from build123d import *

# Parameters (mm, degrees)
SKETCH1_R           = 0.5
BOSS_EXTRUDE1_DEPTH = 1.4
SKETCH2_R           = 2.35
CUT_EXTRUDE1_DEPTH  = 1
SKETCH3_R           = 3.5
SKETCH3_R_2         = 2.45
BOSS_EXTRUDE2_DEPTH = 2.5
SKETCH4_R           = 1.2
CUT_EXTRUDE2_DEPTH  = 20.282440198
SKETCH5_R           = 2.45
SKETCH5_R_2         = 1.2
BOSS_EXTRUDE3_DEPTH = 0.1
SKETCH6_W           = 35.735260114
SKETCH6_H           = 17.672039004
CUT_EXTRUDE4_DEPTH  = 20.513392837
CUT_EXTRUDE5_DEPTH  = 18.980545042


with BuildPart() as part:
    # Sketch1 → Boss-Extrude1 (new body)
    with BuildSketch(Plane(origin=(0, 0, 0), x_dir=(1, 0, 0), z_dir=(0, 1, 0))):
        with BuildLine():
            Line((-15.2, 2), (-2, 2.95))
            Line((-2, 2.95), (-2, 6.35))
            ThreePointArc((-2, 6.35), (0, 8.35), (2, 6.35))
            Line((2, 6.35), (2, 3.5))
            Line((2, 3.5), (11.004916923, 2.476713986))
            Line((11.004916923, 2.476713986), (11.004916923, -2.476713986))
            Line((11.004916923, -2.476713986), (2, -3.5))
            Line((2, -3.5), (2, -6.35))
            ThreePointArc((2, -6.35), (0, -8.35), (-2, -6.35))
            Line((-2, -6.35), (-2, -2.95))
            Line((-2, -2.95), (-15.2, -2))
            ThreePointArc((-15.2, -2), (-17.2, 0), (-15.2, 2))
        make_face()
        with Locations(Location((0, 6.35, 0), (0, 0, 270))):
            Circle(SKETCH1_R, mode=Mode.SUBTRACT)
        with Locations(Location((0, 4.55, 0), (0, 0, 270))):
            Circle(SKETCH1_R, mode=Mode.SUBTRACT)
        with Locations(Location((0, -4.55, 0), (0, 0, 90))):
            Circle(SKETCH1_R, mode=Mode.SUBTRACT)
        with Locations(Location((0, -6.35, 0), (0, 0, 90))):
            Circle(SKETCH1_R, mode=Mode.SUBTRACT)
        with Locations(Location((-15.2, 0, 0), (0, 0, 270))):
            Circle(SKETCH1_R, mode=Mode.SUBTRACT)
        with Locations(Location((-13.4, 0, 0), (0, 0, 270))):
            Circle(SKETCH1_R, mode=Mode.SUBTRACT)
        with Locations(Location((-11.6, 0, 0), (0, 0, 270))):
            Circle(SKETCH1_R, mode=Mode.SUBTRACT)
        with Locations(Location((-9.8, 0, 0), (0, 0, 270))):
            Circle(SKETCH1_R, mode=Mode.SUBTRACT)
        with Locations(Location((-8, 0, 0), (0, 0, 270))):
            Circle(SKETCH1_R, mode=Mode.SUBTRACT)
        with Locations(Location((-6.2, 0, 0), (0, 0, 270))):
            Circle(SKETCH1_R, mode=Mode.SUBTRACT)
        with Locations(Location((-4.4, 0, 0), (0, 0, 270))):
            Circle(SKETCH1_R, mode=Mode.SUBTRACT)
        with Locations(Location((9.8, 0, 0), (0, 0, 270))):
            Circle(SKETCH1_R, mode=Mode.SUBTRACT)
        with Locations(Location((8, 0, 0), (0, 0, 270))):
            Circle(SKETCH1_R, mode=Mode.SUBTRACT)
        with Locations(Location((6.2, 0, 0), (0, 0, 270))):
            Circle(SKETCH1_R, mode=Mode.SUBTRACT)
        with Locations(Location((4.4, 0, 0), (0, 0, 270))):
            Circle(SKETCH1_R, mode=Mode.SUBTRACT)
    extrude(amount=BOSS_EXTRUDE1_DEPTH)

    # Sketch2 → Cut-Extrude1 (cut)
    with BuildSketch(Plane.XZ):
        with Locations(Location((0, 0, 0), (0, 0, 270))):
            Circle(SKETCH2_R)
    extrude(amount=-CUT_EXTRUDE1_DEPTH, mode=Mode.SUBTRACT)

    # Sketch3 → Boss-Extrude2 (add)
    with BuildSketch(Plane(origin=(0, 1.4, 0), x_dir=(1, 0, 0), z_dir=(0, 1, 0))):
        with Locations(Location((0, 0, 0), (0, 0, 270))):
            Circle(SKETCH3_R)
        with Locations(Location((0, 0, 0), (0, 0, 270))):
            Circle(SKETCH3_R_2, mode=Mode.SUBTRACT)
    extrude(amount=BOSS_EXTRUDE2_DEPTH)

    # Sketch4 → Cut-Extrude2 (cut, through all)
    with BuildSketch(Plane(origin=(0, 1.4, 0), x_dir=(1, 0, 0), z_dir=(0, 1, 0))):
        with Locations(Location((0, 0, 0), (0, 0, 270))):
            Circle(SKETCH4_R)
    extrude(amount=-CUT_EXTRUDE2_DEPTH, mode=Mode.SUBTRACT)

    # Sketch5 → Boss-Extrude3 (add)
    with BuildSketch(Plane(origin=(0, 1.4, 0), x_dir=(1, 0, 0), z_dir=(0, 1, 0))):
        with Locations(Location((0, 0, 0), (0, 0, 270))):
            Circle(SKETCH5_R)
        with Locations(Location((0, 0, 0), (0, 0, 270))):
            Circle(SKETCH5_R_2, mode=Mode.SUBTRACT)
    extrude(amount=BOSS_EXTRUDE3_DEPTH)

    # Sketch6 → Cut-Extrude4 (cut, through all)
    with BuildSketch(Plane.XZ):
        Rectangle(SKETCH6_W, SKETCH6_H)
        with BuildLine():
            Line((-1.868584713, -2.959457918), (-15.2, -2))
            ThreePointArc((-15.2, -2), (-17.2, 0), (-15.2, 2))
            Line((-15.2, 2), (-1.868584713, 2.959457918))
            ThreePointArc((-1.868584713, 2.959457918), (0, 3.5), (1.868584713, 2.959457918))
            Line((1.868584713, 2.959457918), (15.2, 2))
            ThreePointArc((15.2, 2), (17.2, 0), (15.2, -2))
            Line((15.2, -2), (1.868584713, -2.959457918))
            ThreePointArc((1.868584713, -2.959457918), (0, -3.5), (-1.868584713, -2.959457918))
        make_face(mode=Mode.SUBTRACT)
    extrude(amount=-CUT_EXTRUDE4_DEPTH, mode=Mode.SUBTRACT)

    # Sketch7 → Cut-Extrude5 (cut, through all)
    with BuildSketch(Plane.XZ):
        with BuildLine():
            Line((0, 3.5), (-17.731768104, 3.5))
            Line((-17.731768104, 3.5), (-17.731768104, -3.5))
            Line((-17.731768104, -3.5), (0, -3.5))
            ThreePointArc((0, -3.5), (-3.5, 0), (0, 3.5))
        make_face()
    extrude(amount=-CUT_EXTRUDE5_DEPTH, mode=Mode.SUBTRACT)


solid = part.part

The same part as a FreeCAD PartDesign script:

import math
import FreeCAD as App
import Part
import Sketcher
from FreeCAD import Vector
Q = App.Units.Quantity

doc = App.newDocument("Part")
body = doc.addObject("PartDesign::Body", "Body")

sketch1 = body.newObject("Sketcher::SketchObject", "Sketch")
sketch1.AttachmentSupport = (doc.getObject("XZ_Plane"), [""])
sketch1.MapMode = "FlatFace"
sketch1.addGeometry([
    Part.LineSegment(Vector(-2, -2.95, 0), Vector(-15.2, -2, 0)),
    Part.ArcOfCircle(Part.Circle(Vector(-15.2, 0, 0), Vector(0, 0, 1), 2), math.radians(90), math.radians(270)),
    Part.LineSegment(Vector(-15.2, 2, 0), Vector(-2, 2.95, 0)),
    Part.LineSegment(Vector(-2, 2.95, 0), Vector(-2, 6.35, 0)),
    Part.ArcOfCircle(Part.Circle(Vector(0, 6.35, 0), Vector(0, 0, 1), 2), math.radians(0), math.radians(180)),
    Part.LineSegment(Vector(2, 6.35, 0), Vector(2, 3.5, 0)),
    Part.LineSegment(Vector(2, 3.5, 0), Vector(11.004917, 2.476714, 0)),
    Part.LineSegment(Vector(11.004917, 2.476714, 0), Vector(11.004917, -2.476714, 0)),
    Part.LineSegment(Vector(11.004917, -2.476714, 0), Vector(2, -3.5, 0)),
    Part.LineSegment(Vector(2, -3.5, 0), Vector(2, -6.35, 0)),
    Part.ArcOfCircle(Part.Circle(Vector(0, -6.35, 0), Vector(0, 0, 1), 2), math.radians(180), math.radians(360)),
    Part.LineSegment(Vector(-2, -6.35, 0), Vector(-2, -2.95, 0)),
    Part.Circle(Vector(0, 6.35, 0), Vector(0, 0, 1), 0.5),
    Part.Circle(Vector(0, 4.55, 0), Vector(0, 0, 1), 0.5),
    Part.Circle(Vector(9.8, 0, 0), Vector(0, 0, 1), 0.5),
    Part.Circle(Vector(8, 0, 0), Vector(0, 0, 1), 0.5),
    Part.Circle(Vector(6.2, 0, 0), Vector(0, 0, 1), 0.5),
    Part.Circle(Vector(4.4, 0, 0), Vector(0, 0, 1), 0.5),
    Part.Circle(Vector(0, -4.55, 0), Vector(0, 0, 1), 0.5),
    Part.Circle(Vector(0, -6.35, 0), Vector(0, 0, 1), 0.5),
    Part.Circle(Vector(-4.4, 0, 0), Vector(0, 0, 1), 0.5),
    Part.Circle(Vector(-6.2, 0, 0), Vector(0, 0, 1), 0.5),
    Part.Circle(Vector(-8, 0, 0), Vector(0, 0, 1), 0.5),
    Part.Circle(Vector(-9.8, 0, 0), Vector(0, 0, 1), 0.5),
    Part.Circle(Vector(-11.6, 0, 0), Vector(0, 0, 1), 0.5),
    Part.Circle(Vector(-13.4, 0, 0), Vector(0, 0, 1), 0.5),
    Part.Circle(Vector(-15.2, 0, 0), Vector(0, 0, 1), 0.5),
], False)
sketch1.addConstraint([
    Sketcher.Constraint("Coincident", 0, 2, 1, 2),
    Sketcher.Constraint("Coincident", 1, 1, 2, 1),
    Sketcher.Constraint("Coincident", 2, 2, 3, 1),
    Sketcher.Constraint("Tangent", 3, 2, 4, 2),
    Sketcher.Constraint("Tangent", 4, 1, 5, 1),
    Sketcher.Constraint("Coincident", 5, 2, 6, 1),
    Sketcher.Constraint("Coincident", 6, 2, 7, 1),
    Sketcher.Constraint("Coincident", 7, 2, 8, 1),
    Sketcher.Constraint("Coincident", 8, 2, 9, 1),
    Sketcher.Constraint("Tangent", 9, 2, 10, 2),
    Sketcher.Constraint("Tangent", 10, 1, 11, 1),
    Sketcher.Constraint("Coincident", 11, 2, 0, 1),
    Sketcher.Constraint("Vertical", 3),
    Sketcher.Constraint("Vertical", 5),
    Sketcher.Constraint("Vertical", 7),
    Sketcher.Constraint("Vertical", 9),
    Sketcher.Constraint("Vertical", 11),
    Sketcher.Constraint("Coincident", 12, 3, 4, 3),
    Sketcher.Constraint("Coincident", 19, 3, 10, 3),
    Sketcher.Constraint("Coincident", 26, 3, 1, 3),
    Sketcher.Constraint("Equal", 1, 4),
    Sketcher.Constraint("Equal", 4, 10),
    Sketcher.Constraint("Equal", 12, 13),
    Sketcher.Constraint("Equal", 13, 14),
    Sketcher.Constraint("Equal", 14, 15),
    Sketcher.Constraint("Equal", 15, 16),
    Sketcher.Constraint("Equal", 16, 17),
    Sketcher.Constraint("Equal", 17, 18),
    Sketcher.Constraint("Equal", 18, 19),
    Sketcher.Constraint("Equal", 19, 20),
    Sketcher.Constraint("Equal", 20, 21),
    Sketcher.Constraint("Equal", 21, 22),
    Sketcher.Constraint("Equal", 22, 23),
    Sketcher.Constraint("Equal", 23, 24),
    Sketcher.Constraint("Equal", 24, 25),
    Sketcher.Constraint("Equal", 25, 26),
    Sketcher.Constraint("Symmetric", 4, 3, 10, 3, -1, 1),
    Sketcher.Constraint("Symmetric", 13, 3, 18, 3, -1, 1),
    Sketcher.Constraint("Symmetric", 17, 3, 20, 3, -1, 1),
    Sketcher.Constraint("Symmetric", 16, 3, 21, 3, -1, 1),
    Sketcher.Constraint("Symmetric", 15, 3, 22, 3, -1, 1),
    Sketcher.Constraint("Symmetric", 14, 3, 23, 3, -1, 1),
    Sketcher.Constraint("Symmetric", 0, 2, 1, 1, -1),
    Sketcher.Constraint("Symmetric", 5, 2, 8, 2, -1),
    Sketcher.Constraint("PointOnObject", 13, 3, -2),
    Sketcher.Constraint("PointOnObject", 14, 3, -1),
    Sketcher.Constraint("PointOnObject", 15, 3, -1),
    Sketcher.Constraint("PointOnObject", 16, 3, -1),
    Sketcher.Constraint("PointOnObject", 17, 3, -1),
    Sketcher.Constraint("PointOnObject", 24, 3, -1),
    Sketcher.Constraint("PointOnObject", 25, 3, -1),
    Sketcher.Constraint("Vertical", 26, 3, 0, 2),
    Sketcher.Constraint("Equal", 3, 11),
    Sketcher.Constraint("Equal", 6, 8),
    Sketcher.Constraint("Diameter", 12, Q("1 mm")),
    Sketcher.Constraint("Radius", 1, Q("2 mm")),
    Sketcher.Constraint("DistanceY", 3, 1, 3, 2, Q("3.4 mm")),
    Sketcher.Constraint("DistanceX", -1, 1, 15, 3, Q("8 mm")),
    Sketcher.Constraint("DistanceX", 1, 3, 14, 3, Q("25 mm")),
    Sketcher.Constraint("DistanceY", 5, 2, 5, 1, Q("2.85 mm")),
    Sketcher.Constraint("DistanceX", 1, 3, -1, 1, Q("15.2 mm")),
    Sketcher.Constraint("DistanceX", -1, 1, 16, 3, Q("6.2 mm")),
    Sketcher.Constraint("DistanceX", -1, 1, 17, 3, Q("4.4 mm")),
    Sketcher.Constraint("DistanceX", 24, 3, -1, 1, Q("11.6 mm")),
    Sketcher.Constraint("DistanceX", 25, 3, -1, 1, Q("13.4 mm")),
    Sketcher.Constraint("DistanceY", -1, 1, 5, 2, Q("3.5 mm")),
    Sketcher.Constraint("DistanceY", 13, 3, 4, 3, Q("1.8 mm")),
    Sketcher.Constraint("Distance", 6, Q("9.062872 mm")),
    Sketcher.Constraint("DistanceY", 7, 2, 7, 1, Q("4.953428 mm")),
])
pad1 = body.newObject("PartDesign::Pad", "Pad")
pad1.Profile = sketch1
pad1.Length = 1.4
pad1.Reversed = True

sketch2 = body.newObject("Sketcher::SketchObject", "Sketch001")
sketch2.AttachmentSupport = (doc.getObject("XZ_Plane"), [""])
sketch2.MapMode = "FlatFace"
sketch2.addGeometry(Part.Circle(Vector(0, 0, 0), Vector(0, 0, 1), 2.35), False)
sketch2.addConstraint([
    Sketcher.Constraint("Coincident", 0, 3, -1, 1),
    Sketcher.Constraint("Diameter", 0, Q("4.7 mm")),
])
pocket1 = body.newObject("PartDesign::Pocket", "Pocket")
pocket1.Profile = sketch2
pocket1.Length = 1

sketch3 = body.newObject("Sketcher::SketchObject", "Sketch002")
sketch3.AttachmentSupport = (doc.getObject("XZ_Plane"), [""])
sketch3.MapMode = "FlatFace"
sketch3.AttachmentOffset = App.Placement(Vector(0, 0, -1.4), App.Rotation())
sketch3.addGeometry([
    Part.Circle(Vector(0, 0, 0), Vector(0, 0, 1), 3.5),
    Part.Circle(Vector(0, 0, 0), Vector(0, 0, 1), 2.45),
], False)
sketch3.addConstraint([
    Sketcher.Constraint("Coincident", 0, 3, -1, 1),
    Sketcher.Constraint("Coincident", 1, 3, -1, 1),
    Sketcher.Constraint("Diameter", 0, Q("7 mm")),
    Sketcher.Constraint("Diameter", 1, Q("4.9 mm")),
])
pad2 = body.newObject("PartDesign::Pad", "Pad001")
pad2.Profile = sketch3
pad2.Length = 2.5
pad2.Reversed = True

sketch4 = body.newObject("Sketcher::SketchObject", "Sketch003")
sketch4.AttachmentSupport = (doc.getObject("XZ_Plane"), [""])
sketch4.MapMode = "FlatFace"
sketch4.AttachmentOffset = App.Placement(Vector(0, 0, -1.4), App.Rotation())
sketch4.addGeometry(Part.Circle(Vector(0, 0, 0), Vector(0, 0, 1), 1.2), False)
sketch4.addConstraint([
    Sketcher.Constraint("Coincident", 0, 3, -1, 1),
    Sketcher.Constraint("Diameter", 0, Q("2.4 mm")),
])
pocket2 = body.newObject("PartDesign::Pocket", "Pocket001")
pocket2.Profile = sketch4
pocket2.Type = "ThroughAll"
pocket2.Reversed = True

sketch5 = body.newObject("Sketcher::SketchObject", "Sketch004")
sketch5.AttachmentSupport = (doc.getObject("XZ_Plane"), [""])
sketch5.MapMode = "FlatFace"
sketch5.AttachmentOffset = App.Placement(Vector(0, 0, -1.4), App.Rotation())
sketch5.addGeometry([
    Part.Circle(Vector(0, 0, 0), Vector(0, 0, 1), 2.45),
    Part.Circle(Vector(0, 0, 0), Vector(0, 0, 1), 1.2),
], False)
sketch5.addConstraint([
    Sketcher.Constraint("Coincident", 0, 3, -1, 1),
    Sketcher.Constraint("Coincident", 1, 3, -1, 1),
    Sketcher.Constraint("Diameter", 0, Q("4.9 mm")),
    Sketcher.Constraint("Diameter", 1, Q("2.4 mm")),
])
pad3 = body.newObject("PartDesign::Pad", "Pad002")
pad3.Profile = sketch5
pad3.Length = 0.1
pad3.Reversed = True

sketch6 = body.newObject("Sketcher::SketchObject", "Sketch005")
sketch6.AttachmentSupport = (doc.getObject("XZ_Plane"), [""])
sketch6.MapMode = "FlatFace"
sketch6.addGeometry([
    Part.LineSegment(Vector(-17.86763, 8.83602, 0), Vector(-17.86763, -8.83602, 0)),
    Part.LineSegment(Vector(-17.86763, -8.83602, 0), Vector(17.86763, -8.83602, 0)),
    Part.LineSegment(Vector(17.86763, -8.83602, 0), Vector(17.86763, 8.83602, 0)),
    Part.LineSegment(Vector(17.86763, 8.83602, 0), Vector(-17.86763, 8.83602, 0)),
    Part.ArcOfCircle(Part.Circle(Vector(0, 0, 0), Vector(0, 0, 1), 3.5), math.radians(-122.268079), math.radians(-57.731921)),
    Part.LineSegment(Vector(-1.868585, -2.959458, 0), Vector(-15.2, -2, 0)),
    Part.ArcOfCircle(Part.Circle(Vector(-15.2, 0, 0), Vector(0, 0, 1), 2), math.radians(90), math.radians(270)),
    Part.LineSegment(Vector(-15.2, 2, 0), Vector(-1.868585, 2.959458, 0)),
    Part.ArcOfCircle(Part.Circle(Vector(0, 0, 0), Vector(0, 0, 1), 3.5), math.radians(57.731921), math.radians(122.268079)),
    Part.LineSegment(Vector(1.868585, 2.959458, 0), Vector(15.2, 2, 0)),
    Part.ArcOfCircle(Part.Circle(Vector(15.2, 0, 0), Vector(0, 0, 1), 2), math.radians(-90), math.radians(90)),
    Part.LineSegment(Vector(15.2, -2, 0), Vector(1.868585, -2.959458, 0)),
], False)
sketch6.addConstraint([
    Sketcher.Constraint("Coincident", 0, 2, 1, 1),
    Sketcher.Constraint("Coincident", 1, 2, 2, 1),
    Sketcher.Constraint("Coincident", 2, 2, 3, 1),
    Sketcher.Constraint("Coincident", 3, 2, 0, 1),
    Sketcher.Constraint("Coincident", 4, 1, 5, 1),
    Sketcher.Constraint("Coincident", 5, 2, 6, 2),
    Sketcher.Constraint("Coincident", 6, 1, 7, 1),
    Sketcher.Constraint("Coincident", 7, 2, 8, 2),
    Sketcher.Constraint("Coincident", 8, 1, 9, 1),
    Sketcher.Constraint("Coincident", 9, 2, 10, 2),
    Sketcher.Constraint("Coincident", 10, 1, 11, 1),
    Sketcher.Constraint("Coincident", 11, 2, 4, 2),
    Sketcher.Constraint("Vertical", 0),
    Sketcher.Constraint("Horizontal", 1),
    Sketcher.Constraint("Vertical", 2),
    Sketcher.Constraint("Horizontal", 3),
    Sketcher.Constraint("Coincident", 4, 3, -1, 1),
    Sketcher.Constraint("Coincident", 8, 3, -1, 1),
    Sketcher.Constraint("Equal", 4, 8),
    Sketcher.Constraint("Equal", 6, 10),
    Sketcher.Constraint("Symmetric", 6, 3, 10, 3, -1, 1),
    Sketcher.Constraint("Symmetric", 0, 2, 2, 2, -1, 1),
    Sketcher.Constraint("Symmetric", 6, 1, 9, 2, -2),
    Sketcher.Constraint("Parallel", 5, 9),
    Sketcher.Constraint("Parallel", 7, 11),
    Sketcher.Constraint("Horizontal", 7, 2, 8, 1),
    Sketcher.Constraint("Horizontal", 4, 1, 11, 2),
    Sketcher.Constraint("Vertical", 6, 3, 5, 2),
    Sketcher.Constraint("Vertical", 5, 2, 6, 1),
    Sketcher.Constraint("Radius", 6, Q("2 mm")),
    Sketcher.Constraint("Radius", 4, Q("3.5 mm")),
    Sketcher.Constraint("DistanceX", 6, 3, -1, 1, Q("15.2 mm")),
    Sketcher.Constraint("DistanceX", 1, 1, 1, 2, Q("35.73526 mm")),
    Sketcher.Constraint("DistanceY", 0, 2, 0, 1, Q("17.672039 mm")),
    Sketcher.Constraint("DistanceY", 0, 2, 4, 1, Q("5.876562 mm")),
])
pocket3 = body.newObject("PartDesign::Pocket", "Pocket002")
pocket3.Profile = sketch6
pocket3.Type = "ThroughAll"

sketch7 = body.newObject("Sketcher::SketchObject", "Sketch006")
sketch7.AttachmentSupport = (doc.getObject("XZ_Plane"), [""])
sketch7.MapMode = "FlatFace"
sketch7.addGeometry([
    Part.LineSegment(Vector(0, 3.5, 0), Vector(-17.731768, 3.5, 0)),
    Part.LineSegment(Vector(-17.731768, 3.5, 0), Vector(-17.731768, -3.5, 0)),
    Part.LineSegment(Vector(-17.731768, -3.5, 0), Vector(0, -3.5, 0)),
    Part.ArcOfCircle(Part.Circle(Vector(0, 0, 0), Vector(0, 0, 1), 3.5), math.radians(90), math.radians(270)),
], False)
sketch7.addConstraint([
    Sketcher.Constraint("Coincident", 0, 2, 1, 1),
    Sketcher.Constraint("Coincident", 1, 2, 2, 1),
    Sketcher.Constraint("Tangent", 2, 2, 3, 2),
    Sketcher.Constraint("Tangent", 3, 1, 0, 1),
    Sketcher.Constraint("Horizontal", 0),
    Sketcher.Constraint("Vertical", 1),
    Sketcher.Constraint("Horizontal", 2),
    Sketcher.Constraint("Coincident", 3, 3, -1, 1),
    Sketcher.Constraint("Radius", 3, Q("3.5 mm")),
    Sketcher.Constraint("DistanceX", 0, 2, 0, 1, Q("17.731768 mm")),
])
pocket4 = body.newObject("PartDesign::Pocket", "Pocket003")
pocket4.Profile = sketch7
pocket4.Type = "ThroughAll"

doc.recompute()
